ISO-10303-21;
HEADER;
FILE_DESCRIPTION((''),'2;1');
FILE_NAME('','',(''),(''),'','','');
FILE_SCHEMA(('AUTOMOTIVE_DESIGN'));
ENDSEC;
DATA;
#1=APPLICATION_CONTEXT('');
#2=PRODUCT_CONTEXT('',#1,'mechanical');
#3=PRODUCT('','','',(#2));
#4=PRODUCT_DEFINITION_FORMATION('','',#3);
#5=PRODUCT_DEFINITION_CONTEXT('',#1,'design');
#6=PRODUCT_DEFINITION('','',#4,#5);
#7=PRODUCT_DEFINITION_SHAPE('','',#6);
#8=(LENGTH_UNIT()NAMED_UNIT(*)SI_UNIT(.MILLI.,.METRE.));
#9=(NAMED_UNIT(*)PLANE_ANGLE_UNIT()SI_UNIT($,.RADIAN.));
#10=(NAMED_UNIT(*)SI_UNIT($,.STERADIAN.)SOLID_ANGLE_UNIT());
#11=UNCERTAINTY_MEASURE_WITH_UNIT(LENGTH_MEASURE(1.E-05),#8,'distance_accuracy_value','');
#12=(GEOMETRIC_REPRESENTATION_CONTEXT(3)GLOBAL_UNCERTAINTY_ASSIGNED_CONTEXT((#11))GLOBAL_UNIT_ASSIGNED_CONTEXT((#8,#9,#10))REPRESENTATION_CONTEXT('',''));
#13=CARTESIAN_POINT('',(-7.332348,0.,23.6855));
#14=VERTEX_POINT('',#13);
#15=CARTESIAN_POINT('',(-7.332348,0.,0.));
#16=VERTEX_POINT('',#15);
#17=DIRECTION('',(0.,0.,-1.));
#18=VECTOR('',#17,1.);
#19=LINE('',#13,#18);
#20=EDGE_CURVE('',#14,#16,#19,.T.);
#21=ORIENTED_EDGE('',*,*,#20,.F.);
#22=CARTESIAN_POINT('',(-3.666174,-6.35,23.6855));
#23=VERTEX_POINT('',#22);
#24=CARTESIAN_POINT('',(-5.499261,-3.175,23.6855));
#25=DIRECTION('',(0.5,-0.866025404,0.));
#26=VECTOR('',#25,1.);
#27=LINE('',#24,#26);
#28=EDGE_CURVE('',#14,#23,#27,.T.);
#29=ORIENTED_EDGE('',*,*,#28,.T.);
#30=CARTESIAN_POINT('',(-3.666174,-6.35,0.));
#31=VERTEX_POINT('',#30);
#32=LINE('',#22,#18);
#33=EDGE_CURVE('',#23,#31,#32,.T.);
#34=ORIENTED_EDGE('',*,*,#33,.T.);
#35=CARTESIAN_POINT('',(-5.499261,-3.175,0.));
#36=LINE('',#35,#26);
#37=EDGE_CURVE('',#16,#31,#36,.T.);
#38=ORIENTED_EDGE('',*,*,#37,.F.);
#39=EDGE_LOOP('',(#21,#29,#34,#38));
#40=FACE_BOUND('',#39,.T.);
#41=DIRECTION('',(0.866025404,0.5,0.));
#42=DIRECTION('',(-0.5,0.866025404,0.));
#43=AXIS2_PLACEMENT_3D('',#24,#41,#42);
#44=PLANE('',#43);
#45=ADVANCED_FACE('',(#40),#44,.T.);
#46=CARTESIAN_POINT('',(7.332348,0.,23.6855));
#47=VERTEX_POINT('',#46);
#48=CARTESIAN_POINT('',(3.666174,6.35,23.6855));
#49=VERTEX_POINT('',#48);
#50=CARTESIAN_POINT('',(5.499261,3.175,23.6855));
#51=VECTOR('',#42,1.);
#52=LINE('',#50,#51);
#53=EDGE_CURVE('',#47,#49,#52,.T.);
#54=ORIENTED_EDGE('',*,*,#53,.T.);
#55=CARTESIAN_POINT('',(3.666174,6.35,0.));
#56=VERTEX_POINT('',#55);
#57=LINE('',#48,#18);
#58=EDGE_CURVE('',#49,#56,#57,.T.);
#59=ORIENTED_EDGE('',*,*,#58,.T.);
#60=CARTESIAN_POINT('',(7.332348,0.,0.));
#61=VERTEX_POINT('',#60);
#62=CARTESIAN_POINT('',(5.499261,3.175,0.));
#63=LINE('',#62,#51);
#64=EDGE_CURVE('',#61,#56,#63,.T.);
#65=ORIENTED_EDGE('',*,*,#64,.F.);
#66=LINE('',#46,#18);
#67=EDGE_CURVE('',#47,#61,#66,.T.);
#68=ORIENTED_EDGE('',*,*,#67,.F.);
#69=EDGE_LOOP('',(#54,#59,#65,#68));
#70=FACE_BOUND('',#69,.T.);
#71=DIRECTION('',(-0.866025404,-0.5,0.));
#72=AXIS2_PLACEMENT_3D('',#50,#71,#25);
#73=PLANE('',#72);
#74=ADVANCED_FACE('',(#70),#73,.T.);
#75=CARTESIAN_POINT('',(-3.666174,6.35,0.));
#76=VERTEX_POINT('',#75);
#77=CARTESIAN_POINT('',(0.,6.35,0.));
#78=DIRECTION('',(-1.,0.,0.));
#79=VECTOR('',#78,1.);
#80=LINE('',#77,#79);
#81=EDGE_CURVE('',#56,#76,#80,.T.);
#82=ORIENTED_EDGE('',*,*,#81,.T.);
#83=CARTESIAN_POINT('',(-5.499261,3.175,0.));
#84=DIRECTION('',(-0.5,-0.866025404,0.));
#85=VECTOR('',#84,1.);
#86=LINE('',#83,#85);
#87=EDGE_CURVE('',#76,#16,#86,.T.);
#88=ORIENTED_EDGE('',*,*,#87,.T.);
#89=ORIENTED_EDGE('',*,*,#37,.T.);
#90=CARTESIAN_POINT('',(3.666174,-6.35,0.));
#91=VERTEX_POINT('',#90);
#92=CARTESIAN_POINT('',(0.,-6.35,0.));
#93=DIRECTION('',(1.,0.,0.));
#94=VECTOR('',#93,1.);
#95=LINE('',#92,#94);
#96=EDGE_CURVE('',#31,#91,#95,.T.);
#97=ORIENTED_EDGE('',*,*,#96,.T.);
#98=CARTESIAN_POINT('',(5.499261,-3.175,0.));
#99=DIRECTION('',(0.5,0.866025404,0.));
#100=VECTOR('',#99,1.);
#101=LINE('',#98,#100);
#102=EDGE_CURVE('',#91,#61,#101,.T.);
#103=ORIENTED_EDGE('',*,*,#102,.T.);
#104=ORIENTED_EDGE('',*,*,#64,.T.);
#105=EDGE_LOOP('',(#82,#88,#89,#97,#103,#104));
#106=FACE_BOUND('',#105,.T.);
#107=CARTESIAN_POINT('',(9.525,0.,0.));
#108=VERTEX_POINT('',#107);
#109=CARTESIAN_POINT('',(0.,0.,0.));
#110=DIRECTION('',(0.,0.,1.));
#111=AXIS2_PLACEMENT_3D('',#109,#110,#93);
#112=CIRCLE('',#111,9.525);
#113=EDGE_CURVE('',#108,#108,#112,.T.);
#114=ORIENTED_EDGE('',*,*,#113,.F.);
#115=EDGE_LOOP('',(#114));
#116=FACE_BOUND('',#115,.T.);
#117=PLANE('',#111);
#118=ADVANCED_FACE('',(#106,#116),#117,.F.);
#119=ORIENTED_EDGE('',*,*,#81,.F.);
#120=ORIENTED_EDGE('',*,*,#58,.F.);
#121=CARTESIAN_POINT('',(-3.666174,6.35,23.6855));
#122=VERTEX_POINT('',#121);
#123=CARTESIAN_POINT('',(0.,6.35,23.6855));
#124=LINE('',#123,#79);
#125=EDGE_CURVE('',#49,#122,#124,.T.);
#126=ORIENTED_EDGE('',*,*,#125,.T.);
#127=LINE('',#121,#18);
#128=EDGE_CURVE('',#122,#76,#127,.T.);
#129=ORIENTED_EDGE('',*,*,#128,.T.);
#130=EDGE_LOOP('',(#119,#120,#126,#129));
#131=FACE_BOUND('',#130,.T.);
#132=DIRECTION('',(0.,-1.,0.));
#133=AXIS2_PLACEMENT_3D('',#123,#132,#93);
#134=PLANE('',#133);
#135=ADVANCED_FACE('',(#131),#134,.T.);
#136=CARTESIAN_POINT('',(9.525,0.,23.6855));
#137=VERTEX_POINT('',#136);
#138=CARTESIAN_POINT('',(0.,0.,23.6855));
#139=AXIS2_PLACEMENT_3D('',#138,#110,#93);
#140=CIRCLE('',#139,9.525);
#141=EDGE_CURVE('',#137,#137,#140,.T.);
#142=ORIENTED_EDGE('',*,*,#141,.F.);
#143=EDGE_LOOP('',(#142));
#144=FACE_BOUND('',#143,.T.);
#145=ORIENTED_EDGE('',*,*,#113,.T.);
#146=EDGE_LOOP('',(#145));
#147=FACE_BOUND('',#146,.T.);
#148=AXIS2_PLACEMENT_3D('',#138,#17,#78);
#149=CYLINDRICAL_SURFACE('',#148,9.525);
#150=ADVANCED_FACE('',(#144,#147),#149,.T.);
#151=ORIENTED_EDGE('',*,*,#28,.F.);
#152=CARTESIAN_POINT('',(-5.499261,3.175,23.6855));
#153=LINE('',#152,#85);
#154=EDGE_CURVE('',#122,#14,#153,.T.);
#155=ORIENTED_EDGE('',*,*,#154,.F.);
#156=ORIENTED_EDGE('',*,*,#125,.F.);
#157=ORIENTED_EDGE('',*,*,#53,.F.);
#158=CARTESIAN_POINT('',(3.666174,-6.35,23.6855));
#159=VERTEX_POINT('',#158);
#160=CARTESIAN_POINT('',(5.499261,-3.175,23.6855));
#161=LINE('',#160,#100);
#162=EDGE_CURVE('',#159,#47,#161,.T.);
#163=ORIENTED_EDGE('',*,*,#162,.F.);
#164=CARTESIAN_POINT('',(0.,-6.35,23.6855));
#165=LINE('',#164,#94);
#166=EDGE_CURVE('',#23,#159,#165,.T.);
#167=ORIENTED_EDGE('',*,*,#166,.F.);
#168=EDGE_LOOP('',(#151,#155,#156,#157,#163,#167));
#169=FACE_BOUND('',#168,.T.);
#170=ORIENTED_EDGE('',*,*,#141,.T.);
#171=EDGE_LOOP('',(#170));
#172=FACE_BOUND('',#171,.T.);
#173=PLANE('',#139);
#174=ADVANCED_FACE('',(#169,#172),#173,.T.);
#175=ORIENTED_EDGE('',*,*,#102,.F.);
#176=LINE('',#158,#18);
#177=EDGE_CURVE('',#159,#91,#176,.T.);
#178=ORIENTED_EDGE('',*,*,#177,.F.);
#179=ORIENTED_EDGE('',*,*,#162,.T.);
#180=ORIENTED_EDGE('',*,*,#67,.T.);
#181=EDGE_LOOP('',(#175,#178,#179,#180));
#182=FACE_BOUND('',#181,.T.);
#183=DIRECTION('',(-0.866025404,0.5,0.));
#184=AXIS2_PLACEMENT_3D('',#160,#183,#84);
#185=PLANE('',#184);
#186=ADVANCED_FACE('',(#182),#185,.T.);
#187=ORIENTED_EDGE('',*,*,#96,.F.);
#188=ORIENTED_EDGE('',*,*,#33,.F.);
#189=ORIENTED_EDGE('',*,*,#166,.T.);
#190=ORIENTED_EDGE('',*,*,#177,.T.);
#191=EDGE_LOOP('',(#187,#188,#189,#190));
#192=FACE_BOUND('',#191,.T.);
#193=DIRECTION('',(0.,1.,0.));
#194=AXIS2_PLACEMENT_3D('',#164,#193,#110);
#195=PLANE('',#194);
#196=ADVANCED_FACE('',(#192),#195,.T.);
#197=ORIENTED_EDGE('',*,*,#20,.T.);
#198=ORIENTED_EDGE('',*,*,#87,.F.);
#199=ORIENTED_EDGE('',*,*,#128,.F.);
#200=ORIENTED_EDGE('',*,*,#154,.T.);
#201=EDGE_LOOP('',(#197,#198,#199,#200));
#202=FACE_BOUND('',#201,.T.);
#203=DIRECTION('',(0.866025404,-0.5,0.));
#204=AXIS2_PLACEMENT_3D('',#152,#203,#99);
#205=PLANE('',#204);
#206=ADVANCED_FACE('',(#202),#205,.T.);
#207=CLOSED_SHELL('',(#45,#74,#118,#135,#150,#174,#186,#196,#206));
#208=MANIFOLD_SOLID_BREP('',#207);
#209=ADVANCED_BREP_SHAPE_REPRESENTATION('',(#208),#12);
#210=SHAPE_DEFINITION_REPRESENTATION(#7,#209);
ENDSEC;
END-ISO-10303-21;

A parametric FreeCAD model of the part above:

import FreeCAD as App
import Part
import Sketcher

V = App.Vector
Q = App.Units.Quantity


def add_polygon(sketch, points):
    """Adds a closed chain of lines whose ends are joined by coincident constraints."""
    first, n = sketch.GeometryCount, len(points)
    for a, b in zip(points, points[1:] + points[:1]):
        sketch.addGeometry(Part.LineSegment(App.Vector(*a, 0), App.Vector(*b, 0)), False)
    for i in range(n):
        sketch.addConstraint(Sketcher.Constraint("Coincident", first + i, 2, first + (i + 1) % n, 1))

doc = App.newDocument("Part")
body = doc.addObject("PartDesign::Body", "Body")

sketch1 = body.newObject("Sketcher::SketchObject", "Sketch")
sketch1.AttachmentSupport = (doc.getObject("XY_Plane"), [""])
sketch1.MapMode = "FlatFace"
sketch1.addGeometry(Part.Circle(V(0, 0, 0), V(0, 0, 1), 10), False)
add_polygon(sketch1, [(4, 6), (7, 0), (4, -6), (-4, -6), (-7, 0), (-4, 6)])
sketch1.addConstraint([
    Sketcher.Constraint("Horizontal", 3),
    Sketcher.Constraint("Horizontal", 6),
    Sketcher.Constraint("Coincident", 0, 3, -1, 1),
    Sketcher.Constraint("Symmetric", 1, 2, 4, 2, -1, 1),
    Sketcher.Constraint("Symmetric", 2, 2, 5, 2, -1, 1),
    Sketcher.Constraint("PointOnObject", 1, 2, -1),
    Sketcher.Constraint("Parallel", 1, 4),
    Sketcher.Constraint("Vertical", 3, 2, 5, 2),
    Sketcher.Constraint("Diameter", 0, Q("0.75 in")),
    Sketcher.Constraint("Angle", 1, Q("-60 deg")),
    Sketcher.Constraint("DistanceY", 3, 2, 5, 2, Q("0.5 in")),
    Sketcher.Constraint("DistanceX", 3, 2, 3, 1, Q("7.332348 mm")),
])
pad1 = body.newObject("PartDesign::Pad", "Pad")
pad1.Profile = sketch1
pad1.Length = Q("0.9325 in")

doc.recompute()
